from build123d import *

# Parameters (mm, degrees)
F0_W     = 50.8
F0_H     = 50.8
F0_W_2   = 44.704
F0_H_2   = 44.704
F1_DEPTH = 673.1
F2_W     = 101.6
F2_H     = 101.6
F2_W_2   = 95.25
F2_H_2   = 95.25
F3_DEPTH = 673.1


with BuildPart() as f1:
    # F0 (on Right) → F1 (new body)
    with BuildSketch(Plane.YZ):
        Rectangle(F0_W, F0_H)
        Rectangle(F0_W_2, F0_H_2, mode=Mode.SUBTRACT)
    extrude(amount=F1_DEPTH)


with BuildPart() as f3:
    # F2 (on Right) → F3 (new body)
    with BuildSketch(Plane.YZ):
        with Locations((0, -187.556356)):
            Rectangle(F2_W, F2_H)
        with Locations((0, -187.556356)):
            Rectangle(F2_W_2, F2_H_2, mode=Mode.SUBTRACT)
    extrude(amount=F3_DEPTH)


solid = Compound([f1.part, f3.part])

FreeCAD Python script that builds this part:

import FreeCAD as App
import Part
import Sketcher

V = App.Vector
Q = App.Units.Quantity


def add_polygon(sketch, points):
    """Adds a closed chain of lines whose ends are joined by coincident constraints."""
    first, n = sketch.GeometryCount, len(points)
    for a, b in zip(points, points[1:] + points[:1]):
        sketch.addGeometry(Part.LineSegment(App.Vector(*a, 0), App.Vector(*b, 0)), False)
    for i in range(n):
        sketch.addConstraint(Sketcher.Constraint("Coincident", first + i, 2, first + (i + 1) % n, 1))

doc = App.newDocument("Part")
body = doc.addObject("PartDesign::Body", "Body")

sketch1 = doc.addObject("Sketcher::SketchObject", "Sketch")
body.addObject(sketch1)
sketch1.AttachmentSupport = (doc.YZ_Plane, [""])
sketch1.MapMode = "FlatFace"
add_polygon(sketch1, [(-25.4, 25.4), (-25.4, -25.4), (25.4, -25.4), (25.4, 25.4)])
add_polygon(sketch1, [(22.352, -22.352), (-22.352, -22.352), (-22.352, 22.352), (22.352, 22.352)])
sketch1.addConstraint(Sketcher.Constraint("Vertical", 0))
sketch1.addConstraint(Sketcher.Constraint("Horizontal", 1))
sketch1.addConstraint(Sketcher.Constraint("Vertical", 2))
sketch1.addConstraint(Sketcher.Constraint("Horizontal", 3))
sketch1.addConstraint(Sketcher.Constraint("Horizontal", 4))
sketch1.addConstraint(Sketcher.Constraint("Vertical", 5))
sketch1.addConstraint(Sketcher.Constraint("Horizontal", 6))
sketch1.addConstraint(Sketcher.Constraint("Vertical", 7))
sketch1.addConstraint(Sketcher.Constraint("Symmetric", 0, 2, 2, 2, -1, 1))
sketch1.addConstraint(Sketcher.Constraint("Symmetric", 4, 2, 6, 2, -1, 1))
sketch1.addConstraint(Sketcher.Constraint("Equal", 3, 0))
sketch1.addConstraint(Sketcher.Constraint("Equal", 6, 5))
sketch1.addConstraint(Sketcher.Constraint("DistanceX", 1, 1, 1, 2, Q("2 in")))
sketch1.addConstraint(Sketcher.Constraint("DistanceX", 4, 2, 4, 1, Q("1.76 in")))
pad1 = doc.addObject("PartDesign::Pad", "Pad")
body.addObject(pad1)
pad1.Profile = sketch1
pad1.Length = Q("26.5 in")
body2 = doc.addObject("PartDesign::Body", "Body001")

sketch2 = doc.addObject("Sketcher::SketchObject", "Sketch001")
body2.addObject(sketch2)
sketch2.AttachmentSupport = (doc.getObject("YZ_Plane001"), [""])
sketch2.MapMode = "FlatFace"
add_polygon(sketch2, [(-50.8, -136.756356), (-50.8, -238.356356), (50.8, -238.356356), (50.8, -136.756356)])
add_polygon(sketch2, [(47.625, -235.181356), (-47.625, -235.181356), (-47.625, -139.931356), (47.625, -139.931356)])
sketch2.addConstraint(Sketcher.Constraint("Vertical", 0))
sketch2.addConstraint(Sketcher.Constraint("Horizontal", 1))
sketch2.addConstraint(Sketcher.Constraint("Vertical", 2))
sketch2.addConstraint(Sketcher.Constraint("Horizontal", 3))
sketch2.addConstraint(Sketcher.Constraint("Horizontal", 4))
sketch2.addConstraint(Sketcher.Constraint("Vertical", 5))
sketch2.addConstraint(Sketcher.Constraint("Horizontal", 6))
sketch2.addConstraint(Sketcher.Constraint("Vertical", 7))
sketch2.addConstraint(Sketcher.Constraint("Equal", 3, 0))
sketch2.addConstraint(Sketcher.Constraint("Equal", 6, 5))
sketch2.addConstraint(Sketcher.Constraint("DistanceX", 1, 1, 1, 2, Q("4 in")))
sketch2.addConstraint(Sketcher.Constraint("DistanceX", 0, 2, -1, 1, Q("2 in")))
sketch2.addConstraint(Sketcher.Constraint("DistanceX", 4, 2, 4, 1, Q("3.75 in")))
sketch2.addConstraint(Sketcher.Constraint("DistanceX", 4, 2, -1, 1, Q("1.875 in")))
sketch2.addConstraint(Sketcher.Constraint("DistanceY", 0, 2, 4, 2, Q("0.125 in")))
sketch2.addConstraint(Sketcher.Constraint("DistanceY", 0, 2, -1, 1, Q("238.356356 mm")))
pad2 = doc.addObject("PartDesign::Pad", "Pad001")
body2.addObject(pad2)
pad2.Profile = sketch2
pad2.Length = Q("26.5 in")

doc.recompute()
